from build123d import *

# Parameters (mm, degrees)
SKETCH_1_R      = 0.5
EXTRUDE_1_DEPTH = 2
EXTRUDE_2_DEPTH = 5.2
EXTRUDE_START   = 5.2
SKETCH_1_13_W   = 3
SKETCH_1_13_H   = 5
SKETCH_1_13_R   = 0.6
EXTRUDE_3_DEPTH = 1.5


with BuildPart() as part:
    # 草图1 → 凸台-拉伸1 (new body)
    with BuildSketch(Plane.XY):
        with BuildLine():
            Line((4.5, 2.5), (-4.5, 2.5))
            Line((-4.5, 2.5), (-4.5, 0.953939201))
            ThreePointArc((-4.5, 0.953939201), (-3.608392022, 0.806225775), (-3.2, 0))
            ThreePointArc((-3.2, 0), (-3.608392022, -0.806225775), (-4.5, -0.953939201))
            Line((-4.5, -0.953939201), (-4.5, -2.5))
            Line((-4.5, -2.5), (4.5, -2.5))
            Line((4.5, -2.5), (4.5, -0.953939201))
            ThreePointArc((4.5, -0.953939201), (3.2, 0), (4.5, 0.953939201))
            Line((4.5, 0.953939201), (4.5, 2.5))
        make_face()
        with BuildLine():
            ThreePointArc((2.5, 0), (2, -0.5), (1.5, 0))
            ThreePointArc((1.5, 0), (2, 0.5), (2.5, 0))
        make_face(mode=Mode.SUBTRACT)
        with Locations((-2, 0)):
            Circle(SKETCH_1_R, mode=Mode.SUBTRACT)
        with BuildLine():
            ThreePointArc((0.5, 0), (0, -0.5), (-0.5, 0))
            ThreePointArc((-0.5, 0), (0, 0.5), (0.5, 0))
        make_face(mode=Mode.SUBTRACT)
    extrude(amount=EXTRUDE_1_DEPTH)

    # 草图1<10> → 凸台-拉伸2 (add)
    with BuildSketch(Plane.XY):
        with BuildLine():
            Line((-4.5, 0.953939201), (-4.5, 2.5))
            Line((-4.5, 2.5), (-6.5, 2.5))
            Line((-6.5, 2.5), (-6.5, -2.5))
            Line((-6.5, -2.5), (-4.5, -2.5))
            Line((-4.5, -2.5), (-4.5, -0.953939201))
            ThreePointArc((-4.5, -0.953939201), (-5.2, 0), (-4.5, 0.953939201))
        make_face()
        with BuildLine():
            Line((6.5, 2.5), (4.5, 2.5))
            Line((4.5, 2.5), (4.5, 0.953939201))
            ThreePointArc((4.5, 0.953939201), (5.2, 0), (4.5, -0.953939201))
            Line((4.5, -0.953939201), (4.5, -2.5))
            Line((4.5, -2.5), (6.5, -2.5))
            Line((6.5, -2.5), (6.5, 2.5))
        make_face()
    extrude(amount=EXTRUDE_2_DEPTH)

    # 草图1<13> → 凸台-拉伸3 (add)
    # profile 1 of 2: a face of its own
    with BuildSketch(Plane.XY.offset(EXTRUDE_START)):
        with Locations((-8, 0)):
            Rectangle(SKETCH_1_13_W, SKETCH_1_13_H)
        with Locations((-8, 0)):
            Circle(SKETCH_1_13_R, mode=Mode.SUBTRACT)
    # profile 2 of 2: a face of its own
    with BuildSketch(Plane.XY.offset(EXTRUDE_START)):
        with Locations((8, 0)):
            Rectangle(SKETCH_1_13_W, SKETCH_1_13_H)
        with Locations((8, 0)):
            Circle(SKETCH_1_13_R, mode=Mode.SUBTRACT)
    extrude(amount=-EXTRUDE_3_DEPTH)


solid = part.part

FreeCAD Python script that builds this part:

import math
import FreeCAD as App
import Part
import Sketcher


def add_polygon(sketch, points):
    """Adds a closed chain of lines whose ends are joined by coincident constraints."""
    first, n = sketch.GeometryCount, len(points)
    for a, b in zip(points, points[1:] + points[:1]):
        sketch.addGeometry(Part.LineSegment(App.Vector(*a, 0), App.Vector(*b, 0)), False)
    for i in range(n):
        sketch.addConstraint(Sketcher.Constraint("Coincident", first + i, 2, first + (i + 1) % n, 1))

doc = App.newDocument("Part")
body = doc.addObject("PartDesign::Body", "Body")

# Sketch on XY plane
sketch1 = body.newObject("Sketcher::SketchObject", "Sketch")
sketch1.AttachmentSupport = (doc.getObject("XY_Plane"), [""])
sketch1.MapMode = "FlatFace"
sketch1.addGeometry([
    Part.LineSegment(App.Vector(4.5, 2.5, 0), App.Vector(-4.5, 2.5, 0)),  # 0
    Part.LineSegment(App.Vector(-4.5, 2.5, 0), App.Vector(-4.5, 0.953939, 0)),  # 1
    Part.ArcOfCircle(Part.Circle(App.Vector(-4.2, 0, 0), App.Vector(0, 0, 1), 1), math.radians(0), math.radians(107.457603)),  # 2
    Part.ArcOfCircle(Part.Circle(App.Vector(-4.2, 0, 0), App.Vector(0, 0, 1), 1), math.radians(-107.457603), math.radians(0)),  # 3
    Part.LineSegment(App.Vector(-4.5, -0.953939, 0), App.Vector(-4.5, -2.5, 0)),  # 4
    Part.LineSegment(App.Vector(-4.5, -2.5, 0), App.Vector(4.5, -2.5, 0)),  # 5
    Part.LineSegment(App.Vector(4.5, -2.5, 0), App.Vector(4.5, -0.953939, 0)),  # 6
    Part.ArcOfCircle(Part.Circle(App.Vector(4.2, 0, 0), App.Vector(0, 0, 1), 1), math.radians(72.542397), math.radians(287.457603)),  # 7
    Part.LineSegment(App.Vector(4.5, 0.953939, 0), App.Vector(4.5, 2.5, 0)),  # 8
    Part.Circle(App.Vector(-2, 0, 0), App.Vector(0, 0, 1), 0.5),  # 9
    Part.Circle(App.Vector(0, 0, 0), App.Vector(0, 0, 1), 0.5),  # 10
    Part.Circle(App.Vector(2, 0, 0), App.Vector(0, 0, 1), 0.5),  # 11
], False)
sketch1.addConstraint([
    Sketcher.Constraint("Coincident", 0, 2, 1, 1),
    Sketcher.Constraint("Coincident", 1, 2, 2, 2),
    Sketcher.Constraint("Tangent", 2, 1, 3, 2),
    Sketcher.Constraint("Coincident", 3, 1, 4, 1),
    Sketcher.Constraint("Coincident", 4, 2, 5, 1),
    Sketcher.Constraint("Coincident", 5, 2, 6, 1),
    Sketcher.Constraint("Coincident", 6, 2, 7, 2),
    Sketcher.Constraint("Coincident", 7, 1, 8, 1),
    Sketcher.Constraint("Coincident", 8, 2, 0, 1),
    Sketcher.Constraint("Horizontal", 0),
    Sketcher.Constraint("Vertical", 1),
    Sketcher.Constraint("Vertical", 4),
    Sketcher.Constraint("Horizontal", 5),
    Sketcher.Constraint("Vertical", 6),
    Sketcher.Constraint("Vertical", 8),
    Sketcher.Constraint("Coincident", 10, 3, -1, 1),
    Sketcher.Constraint("Equal", 2, 3),
    Sketcher.Constraint("Equal", 3, 7),
    Sketcher.Constraint("Equal", 9, 10),
    Sketcher.Constraint("Equal", 10, 11),
    Sketcher.Constraint("Symmetric", 2, 3, 7, 3, -1, 1),
    Sketcher.Constraint("Symmetric", 9, 3, 11, 3, -1, 1),
    Sketcher.Constraint("Symmetric", 0, 2, 5, 2, -1, 1),
    Sketcher.Constraint("Symmetric", 3, 1, 6, 2, -2),
    Sketcher.Constraint("PointOnObject", 9, 3, -1),
    Sketcher.Constraint("PointOnObject", 2, 1, -1),
    Sketcher.Constraint("Horizontal", 1, 2, 7, 1),
    Sketcher.Constraint("Diameter", 9, 1.0),
    Sketcher.Constraint("Radius", 2, 1.0),
    Sketcher.Constraint("DistanceX", 0, 2, 0, 1, 9.0),
    Sketcher.Constraint("DistanceX", 9, 3, -1, 1, 2.0),
    Sketcher.Constraint("DistanceY", 5, 2, 8, 2, 5.0),
    Sketcher.Constraint("DistanceX", 2, 3, -1, 1, 4.2),
])
pad1 = body.newObject("PartDesign::Pad", "Pad")
pad1.Profile = sketch1
pad1.Length = 2

# Sketch on XY plane
sketch2 = body.newObject("Sketcher::SketchObject", "Sketch001")
sketch2.AttachmentSupport = (doc.getObject("XY_Plane"), [""])
sketch2.MapMode = "FlatFace"
sketch2.addGeometry([
    Part.LineSegment(App.Vector(-4.5, 0.953939, 0), App.Vector(-4.5, 2.5, 0)),  # 0
    Part.LineSegment(App.Vector(-4.5, 2.5, 0), App.Vector(-6.5, 2.5, 0)),  # 1
    Part.LineSegment(App.Vector(-6.5, 2.5, 0), App.Vector(-6.5, -2.5, 0)),  # 2
    Part.LineSegment(App.Vector(-6.5, -2.5, 0), App.Vector(-4.5, -2.5, 0)),  # 3
    Part.LineSegment(App.Vector(-4.5, -2.5, 0), App.Vector(-4.5, -0.953939, 0)),  # 4
    Part.ArcOfCircle(Part.Circle(App.Vector(-4.2, 0, 0), App.Vector(0, 0, 1), 1), math.radians(107.457603), math.radians(252.542397)),  # 5
    Part.LineSegment(App.Vector(6.5, 2.5, 0), App.Vector(4.5, 2.5, 0)),  # 6
    Part.LineSegment(App.Vector(4.5, 2.5, 0), App.Vector(4.5, 0.953939, 0)),  # 7
    Part.ArcOfCircle(Part.Circle(App.Vector(4.2, 0, 0), App.Vector(0, 0, 1), 1), math.radians(-72.542397), math.radians(72.542397)),  # 8
    Part.LineSegment(App.Vector(4.5, -0.953939, 0), App.Vector(4.5, -2.5, 0)),  # 9
    Part.LineSegment(App.Vector(4.5, -2.5, 0), App.Vector(6.5, -2.5, 0)),  # 10
    Part.LineSegment(App.Vector(6.5, -2.5, 0), App.Vector(6.5, 2.5, 0)),  # 11
], False)
sketch2.addConstraint([
    Sketcher.Constraint("Coincident", 0, 2, 1, 1),
    Sketcher.Constraint("Coincident", 1, 2, 2, 1),
    Sketcher.Constraint("Coincident", 2, 2, 3, 1),
    Sketcher.Constraint("Coincident", 3, 2, 4, 1),
    Sketcher.Constraint("Coincident", 4, 2, 5, 2),
    Sketcher.Constraint("Coincident", 5, 1, 0, 1),
    Sketcher.Constraint("Coincident", 6, 2, 7, 1),
    Sketcher.Constraint("Coincident", 7, 2, 8, 2),
    Sketcher.Constraint("Coincident", 8, 1, 9, 1),
    Sketcher.Constraint("Coincident", 9, 2, 10, 1),
    Sketcher.Constraint("Coincident", 10, 2, 11, 1),
    Sketcher.Constraint("Coincident", 11, 2, 6, 1),
    Sketcher.Constraint("Vertical", 0),
    Sketcher.Constraint("Horizontal", 1),
    Sketcher.Constraint("Vertical", 2),
    Sketcher.Constraint("Horizontal", 3),
    Sketcher.Constraint("Vertical", 4),
    Sketcher.Constraint("Horizontal", 6),
    Sketcher.Constraint("Vertical", 7),
    Sketcher.Constraint("Vertical", 9),
    Sketcher.Constraint("Horizontal", 10),
    Sketcher.Constraint("Vertical", 11),
    Sketcher.Constraint("Equal", 5, 8),
    Sketcher.Constraint("Symmetric", 5, 3, 8, 3, -1, 1),
    Sketcher.Constraint("Symmetric", 3, 2, 6, 2, -1, 1),
    Sketcher.Constraint("Symmetric", 0, 2, 9, 2, -1, 1),
    Sketcher.Constraint("Symmetric", 0, 2, 6, 2, -2),
    Sketcher.Constraint("PointOnObject", 5, 3, -1),
    Sketcher.Constraint("Equal", 3, 6),
    Sketcher.Constraint("Radius", 5, 1.0),
    Sketcher.Constraint("DistanceX", 1, 2, 1, 1, 2.0),
    Sketcher.Constraint("DistanceY", 2, 2, 2, 1, 5.0),
    Sketcher.Constraint("DistanceX", 0, 2, 6, 2, 9.0),
    Sketcher.Constraint("DistanceX", 5, 3, -1, 1, 4.2),
])
pad2 = body.newObject("PartDesign::Pad", "Pad001")
pad2.Profile = sketch2
pad2.Length = 5.2

# Sketch on XY plane
sketch3 = body.newObject("Sketcher::SketchObject", "Sketch002")
sketch3.AttachmentSupport = (doc.getObject("XY_Plane"), [""])
sketch3.MapMode = "FlatFace"
sketch3.AttachmentOffset = App.Placement(App.Vector(0, 0, 5.2), App.Rotation())
add_polygon(sketch3, [(-9.5, 2.5), (-9.5, -2.5), (-6.5, -2.5), (-6.5, 2.5)])  # lines 0-3
sketch3.addGeometry(Part.Circle(App.Vector(-8, 0, 0), App.Vector(0, 0, 1), 0.6), False)  # 4
add_polygon(sketch3, [(6.5, 2.5), (6.5, -2.5), (9.5, -2.5), (9.5, 2.5)])  # lines 5-8
sketch3.addGeometry(Part.Circle(App.Vector(8, 0, 0), App.Vector(0, 0, 1), 0.6), False)  # 9
sketch3.addConstraint([
    Sketcher.Constraint("Vertical", 0),
    Sketcher.Constraint("Horizontal", 1),
    Sketcher.Constraint("Vertical", 2),
    Sketcher.Constraint("Horizontal", 3),
    Sketcher.Constraint("Vertical", 5),
    Sketcher.Constraint("Horizontal", 6),
    Sketcher.Constraint("Vertical", 7),
    Sketcher.Constraint("Horizontal", 8),
    Sketcher.Constraint("Equal", 4, 9),
    Sketcher.Constraint("Symmetric", 4, 3, 9, 3, -1, 1),
    Sketcher.Constraint("Symmetric", 2, 2, 5, 2, -1, 1),
    Sketcher.Constraint("Symmetric", 0, 2, 7, 2, -1, 1),
    Sketcher.Constraint("PointOnObject", 4, 3, -1),
    Sketcher.Constraint("Horizontal", 1, 2, 5, 2),
    Sketcher.Constraint("Diameter", 4, 1.2),
    Sketcher.Constraint("DistanceX", 1, 1, 1, 2, 3.0),
    Sketcher.Constraint("DistanceY", 0, 2, 0, 1, 5.0),
    Sketcher.Constraint("DistanceX", 4, 3, -1, 1, 8.0),
    Sketcher.Constraint("DistanceX", 1, 2, 5, 2, 13.0),
])
pad3 = body.newObject("PartDesign::Pad", "Pad002")
pad3.Profile = sketch3
pad3.Length = 1.5
pad3.Reversed = True

doc.recompute()
